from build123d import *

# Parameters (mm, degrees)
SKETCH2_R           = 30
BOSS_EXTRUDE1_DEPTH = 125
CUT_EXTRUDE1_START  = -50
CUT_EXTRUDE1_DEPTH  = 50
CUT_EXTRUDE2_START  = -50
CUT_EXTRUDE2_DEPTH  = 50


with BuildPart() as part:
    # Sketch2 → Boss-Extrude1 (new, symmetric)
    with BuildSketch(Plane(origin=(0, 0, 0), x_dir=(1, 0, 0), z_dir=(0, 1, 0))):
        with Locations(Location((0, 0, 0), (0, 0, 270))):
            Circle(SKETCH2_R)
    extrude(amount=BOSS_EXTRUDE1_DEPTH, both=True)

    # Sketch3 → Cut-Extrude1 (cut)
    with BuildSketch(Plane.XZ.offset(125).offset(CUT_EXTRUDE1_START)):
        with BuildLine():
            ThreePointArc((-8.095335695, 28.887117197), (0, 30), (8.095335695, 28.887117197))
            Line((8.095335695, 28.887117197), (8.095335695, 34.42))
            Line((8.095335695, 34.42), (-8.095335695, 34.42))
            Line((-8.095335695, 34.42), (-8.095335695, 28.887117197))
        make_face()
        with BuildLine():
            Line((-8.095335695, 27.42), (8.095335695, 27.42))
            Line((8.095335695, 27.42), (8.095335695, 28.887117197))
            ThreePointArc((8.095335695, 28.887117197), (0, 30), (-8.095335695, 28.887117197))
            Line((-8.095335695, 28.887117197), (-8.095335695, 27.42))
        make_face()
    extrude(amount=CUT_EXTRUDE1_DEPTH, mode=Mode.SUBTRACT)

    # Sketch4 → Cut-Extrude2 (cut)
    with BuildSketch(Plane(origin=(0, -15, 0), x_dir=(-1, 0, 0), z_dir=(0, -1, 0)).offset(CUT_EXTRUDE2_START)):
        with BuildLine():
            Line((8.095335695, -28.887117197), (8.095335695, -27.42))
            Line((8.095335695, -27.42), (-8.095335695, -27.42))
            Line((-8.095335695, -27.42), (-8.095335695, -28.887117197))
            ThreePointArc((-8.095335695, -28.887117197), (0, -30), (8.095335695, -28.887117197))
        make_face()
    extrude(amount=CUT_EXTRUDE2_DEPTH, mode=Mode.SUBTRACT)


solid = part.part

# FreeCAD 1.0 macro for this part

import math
import FreeCAD as App
import Part
import Sketcher
Q = App.Units.Quantity


def add_polygon(sketch, points):
    """Adds a closed chain of lines whose ends are joined by coincident constraints."""
    first, n = sketch.GeometryCount, len(points)
    for a, b in zip(points, points[1:] + points[:1]):
        sketch.addGeometry(Part.LineSegment(App.Vector(*a, 0), App.Vector(*b, 0)), False)
    for i in range(n):
        sketch.addConstraint(Sketcher.Constraint("Coincident", first + i, 2, first + (i + 1) % n, 1))

doc = App.newDocument("Part")
body = doc.addObject("PartDesign::Body", "Body")

# Sketch on XZ plane
sketch1 = body.newObject("Sketcher::SketchObject", "Sketch")
sketch1.AttachmentSupport = (doc.getObject("XZ_Plane"), [""])
sketch1.MapMode = "FlatFace"
sketch1.addGeometry(Part.Circle(App.Vector(0, 0, 0), App.Vector(0, 0, 1), 30), False)
sketch1.addConstraint(Sketcher.Constraint("Coincident", 0, 3, -1, 1))
sketch1.addConstraint(Sketcher.Constraint("Diameter", 0, Q("60 mm")))
pad1 = body.newObject("PartDesign::Pad", "Pad")
pad1.Profile = sketch1
pad1.Length = 250
pad1.Midplane = True

# Sketch on XZ plane
sketch2 = body.newObject("Sketcher::SketchObject", "Sketch001")
sketch2.AttachmentSupport = (doc.getObject("XZ_Plane"), [""])
sketch2.MapMode = "FlatFace"
sketch2.AttachmentOffset = App.Placement(App.Vector(0, 0, 75), App.Rotation())
add_polygon(sketch2, [(8, 34), (-8, 34), (-8, 27), (8, 27)])  # lines 0-3
sketch2.addConstraint(Sketcher.Constraint("Horizontal", 0))
sketch2.addConstraint(Sketcher.Constraint("Vertical", 1))
sketch2.addConstraint(Sketcher.Constraint("Horizontal", 2))
sketch2.addConstraint(Sketcher.Constraint("Vertical", 3))
sketch2.addConstraint(Sketcher.Constraint("DistanceY", 1, 2, 1, 1, Q("7 mm")))
sketch2.addConstraint(Sketcher.Constraint("DistanceY", -1, 1, 0, 2, Q("34.42 mm")))
sketch2.addConstraint(Sketcher.Constraint("DistanceX", 0, 2, 0, 1, Q("16.190671 mm")))
sketch2.addConstraint(Sketcher.Constraint("DistanceX", 0, 2, -1, 1, Q("8.095336 mm")))
pocket1 = body.newObject("PartDesign::Pocket", "Pocket")
pocket1.Profile = sketch2
pocket1.Length = 50
pocket1.Reversed = True

# Sketch on XZ plane
sketch3 = body.newObject("Sketcher::SketchObject", "Sketch002")
sketch3.AttachmentSupport = (doc.getObject("XZ_Plane"), [""])
sketch3.MapMode = "FlatFace"
sketch3.AttachmentOffset = App.Placement(App.Vector(0, 0, -35), App.Rotation())
sketch3.addGeometry(Part.LineSegment(App.Vector(-8.1, 28.9, 0), App.Vector(-8.1, 27.4, 0)), False)
sketch3.addGeometry(Part.LineSegment(App.Vector(-8.1, 27.4, 0), App.Vector(8.1, 27.4, 0)), False)
sketch3.addGeometry(Part.LineSegment(App.Vector(8.1, 27.4, 0), App.Vector(8.1, 28.9, 0)), False)
sketch3.addGeometry(Part.ArcOfCircle(Part.Circle(App.Vector(0, 0, 0), App.Vector(0, 0, 1), 30), math.radians(74), math.radians(106)), False)
sketch3.addConstraint(Sketcher.Constraint("Coincident", 0, 2, 1, 1))
sketch3.addConstraint(Sketcher.Constraint("Coincident", 1, 2, 2, 1))
sketch3.addConstraint(Sketcher.Constraint("Coincident", 2, 2, 3, 1))
sketch3.addConstraint(Sketcher.Constraint("Coincident", 3, 2, 0, 1))
sketch3.addConstraint(Sketcher.Constraint("Vertical", 0))
sketch3.addConstraint(Sketcher.Constraint("Horizontal", 1))
sketch3.addConstraint(Sketcher.Constraint("Vertical", 2))
sketch3.addConstraint(Sketcher.Constraint("Coincident", 3, 3, -1, 1))
sketch3.addConstraint(Sketcher.Constraint("Horizontal", 2, 2, 3, 2))
sketch3.addConstraint(Sketcher.Constraint("Radius", 3, Q("30 mm")))
sketch3.addConstraint(Sketcher.Constraint("DistanceY", -1, 1, 0, 2, Q("27.42 mm")))
sketch3.addConstraint(Sketcher.Constraint("DistanceX", 1, 1, 1, 2, Q("16.190671 mm")))
pocket2 = body.newObject("PartDesign::Pocket", "Pocket001")
pocket2.Profile = sketch3
pocket2.Length = 50
pocket2.Reversed = True

doc.recompute()
